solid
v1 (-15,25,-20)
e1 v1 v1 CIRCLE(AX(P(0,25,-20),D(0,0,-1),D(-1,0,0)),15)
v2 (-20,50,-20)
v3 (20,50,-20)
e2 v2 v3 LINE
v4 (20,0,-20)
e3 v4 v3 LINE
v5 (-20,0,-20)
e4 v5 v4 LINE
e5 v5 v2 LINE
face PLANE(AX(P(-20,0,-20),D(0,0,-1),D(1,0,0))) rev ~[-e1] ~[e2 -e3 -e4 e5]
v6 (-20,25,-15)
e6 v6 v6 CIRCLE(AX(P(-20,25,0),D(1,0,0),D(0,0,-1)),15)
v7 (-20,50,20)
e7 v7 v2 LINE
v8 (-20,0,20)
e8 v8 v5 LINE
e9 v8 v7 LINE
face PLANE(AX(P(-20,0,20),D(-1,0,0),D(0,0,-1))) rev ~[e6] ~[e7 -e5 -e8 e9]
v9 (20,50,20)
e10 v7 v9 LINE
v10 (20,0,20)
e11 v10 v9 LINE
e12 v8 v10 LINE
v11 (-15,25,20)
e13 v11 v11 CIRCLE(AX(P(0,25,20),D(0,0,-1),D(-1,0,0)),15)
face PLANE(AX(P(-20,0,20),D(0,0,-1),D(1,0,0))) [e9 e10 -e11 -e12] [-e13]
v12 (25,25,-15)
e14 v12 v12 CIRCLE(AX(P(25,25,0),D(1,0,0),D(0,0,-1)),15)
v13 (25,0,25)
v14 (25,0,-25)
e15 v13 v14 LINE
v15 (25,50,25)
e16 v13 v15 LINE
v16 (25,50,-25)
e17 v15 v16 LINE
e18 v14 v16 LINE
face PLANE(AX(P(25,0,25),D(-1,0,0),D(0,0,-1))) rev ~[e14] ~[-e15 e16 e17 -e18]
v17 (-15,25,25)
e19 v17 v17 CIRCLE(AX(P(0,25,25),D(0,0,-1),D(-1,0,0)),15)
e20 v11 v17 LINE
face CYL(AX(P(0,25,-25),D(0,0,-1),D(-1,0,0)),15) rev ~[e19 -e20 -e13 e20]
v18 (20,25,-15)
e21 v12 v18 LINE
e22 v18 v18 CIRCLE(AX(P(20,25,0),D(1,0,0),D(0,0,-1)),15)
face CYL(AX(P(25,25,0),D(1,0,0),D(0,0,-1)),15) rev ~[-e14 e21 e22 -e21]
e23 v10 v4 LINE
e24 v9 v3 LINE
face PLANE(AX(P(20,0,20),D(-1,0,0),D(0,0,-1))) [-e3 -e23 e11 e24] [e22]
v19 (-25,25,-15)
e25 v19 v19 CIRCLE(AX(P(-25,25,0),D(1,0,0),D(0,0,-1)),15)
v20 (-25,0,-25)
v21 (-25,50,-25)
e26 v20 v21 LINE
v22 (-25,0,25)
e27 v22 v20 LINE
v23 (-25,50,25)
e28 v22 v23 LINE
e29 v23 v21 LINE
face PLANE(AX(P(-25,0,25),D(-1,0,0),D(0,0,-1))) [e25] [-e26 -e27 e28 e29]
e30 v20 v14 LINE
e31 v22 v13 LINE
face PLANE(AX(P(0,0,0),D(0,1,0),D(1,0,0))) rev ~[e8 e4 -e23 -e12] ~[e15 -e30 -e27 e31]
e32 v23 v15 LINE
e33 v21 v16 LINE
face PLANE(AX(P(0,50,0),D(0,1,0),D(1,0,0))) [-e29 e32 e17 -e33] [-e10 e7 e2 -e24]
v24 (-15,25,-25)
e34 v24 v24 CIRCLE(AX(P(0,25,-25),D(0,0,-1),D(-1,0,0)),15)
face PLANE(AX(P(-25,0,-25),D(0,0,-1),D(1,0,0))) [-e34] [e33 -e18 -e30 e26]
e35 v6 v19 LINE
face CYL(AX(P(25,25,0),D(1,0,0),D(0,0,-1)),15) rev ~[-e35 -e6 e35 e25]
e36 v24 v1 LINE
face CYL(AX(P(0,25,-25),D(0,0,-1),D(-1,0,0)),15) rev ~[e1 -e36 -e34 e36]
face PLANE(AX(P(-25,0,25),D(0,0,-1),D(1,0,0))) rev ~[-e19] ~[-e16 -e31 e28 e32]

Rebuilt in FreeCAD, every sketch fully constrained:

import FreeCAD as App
import Part
import Sketcher
Q = App.Units.Quantity


def add_polygon(sketch, points):
    """Adds a closed chain of lines whose ends are joined by coincident constraints."""
    first, n = sketch.GeometryCount, len(points)
    for a, b in zip(points, points[1:] + points[:1]):
        sketch.addGeometry(Part.LineSegment(App.Vector(*a, 0), App.Vector(*b, 0)), False)
    for i in range(n):
        sketch.addConstraint(Sketcher.Constraint("Coincident", first + i, 2, first + (i + 1) % n, 1))

doc = App.newDocument("Part")
body = doc.addObject("PartDesign::Body", "Body")

# Sketch on XZ plane
sketch1 = doc.addObject("Sketcher::SketchObject", "Sketch")
body.addObject(sketch1)
sketch1.AttachmentSupport = (doc.XZ_Plane, [""])
sketch1.MapMode = "FlatFace"
add_polygon(sketch1, [(-25, -25), (-25, 25), (25, 25), (25, -25)])  # lines 0-3
add_polygon(sketch1, [(20, 20), (-20, 20), (-20, -20), (20, -20)])  # lines 4-7
sketch1.addConstraint([
    Sketcher.Constraint("Vertical", 0),
    Sketcher.Constraint("Horizontal", 1),
    Sketcher.Constraint("Vertical", 2),
    Sketcher.Constraint("Horizontal", 3),
    Sketcher.Constraint("Horizontal", 4),
    Sketcher.Constraint("Vertical", 5),
    Sketcher.Constraint("Horizontal", 6),
    Sketcher.Constraint("Vertical", 7),
    Sketcher.Constraint("Symmetric", 0, 2, 2, 2, -1, 1),
    Sketcher.Constraint("Symmetric", 4, 2, 6, 2, -1, 1),
    Sketcher.Constraint("Equal", 3, 0),
    Sketcher.Constraint("Equal", 6, 5),
    Sketcher.Constraint("DistanceX", 1, 1, 1, 2, Q("50 mm")),
    Sketcher.Constraint("DistanceX", 4, 2, 4, 1, Q("40 mm")),
])
pad1 = doc.addObject("PartDesign::Pad", "Pad")
body.addObject(pad1)
pad1.Profile = sketch1
pad1.Length = 50
pad1.Reversed = True

# Sketch on YZ plane
sketch2 = doc.addObject("Sketcher::SketchObject", "Sketch001")
body.addObject(sketch2)
sketch2.AttachmentSupport = (doc.YZ_Plane, [""])
sketch2.MapMode = "FlatFace"
sketch2.AttachmentOffset = App.Placement(App.Vector(0, 0, 25), App.Rotation())
sketch2.addGeometry(Part.Circle(App.Vector(25, 0, 0), App.Vector(0, 0, 1), 15), False)
sketch2.addConstraint([
    Sketcher.Constraint("PointOnObject", 0, 3, -1),
    Sketcher.Constraint("Diameter", 0, Q("30 mm")),
    Sketcher.Constraint("DistanceX", -1, 1, 0, 3, Q("25 mm")),
])
pocket1 = doc.addObject("PartDesign::Pocket", "Pocket")
body.addObject(pocket1)
pocket1.Profile = sketch2
pocket1.Length = 50

# Sketch on XY plane
sketch3 = doc.addObject("Sketcher::SketchObject", "Sketch002")
body.addObject(sketch3)
sketch3.AttachmentSupport = (doc.XY_Plane, [""])
sketch3.MapMode = "FlatFace"
sketch3.AttachmentOffset = App.Placement(App.Vector(0, 0, -25), App.Rotation())
sketch3.addGeometry(Part.Circle(App.Vector(0, 25, 0), App.Vector(0, 0, 1), 15), False)
sketch3.addConstraint([
    Sketcher.Constraint("PointOnObject", 0, 3, -2),
    Sketcher.Constraint("Diameter", 0, Q("30 mm")),
    Sketcher.Constraint("DistanceY", -1, 1, 0, 3, Q("25 mm")),
])
pocket2 = doc.addObject("PartDesign::Pocket", "Pocket001")
body.addObject(pocket2)
pocket2.Profile = sketch3
pocket2.Length = 50
pocket2.Reversed = True

doc.recompute()
